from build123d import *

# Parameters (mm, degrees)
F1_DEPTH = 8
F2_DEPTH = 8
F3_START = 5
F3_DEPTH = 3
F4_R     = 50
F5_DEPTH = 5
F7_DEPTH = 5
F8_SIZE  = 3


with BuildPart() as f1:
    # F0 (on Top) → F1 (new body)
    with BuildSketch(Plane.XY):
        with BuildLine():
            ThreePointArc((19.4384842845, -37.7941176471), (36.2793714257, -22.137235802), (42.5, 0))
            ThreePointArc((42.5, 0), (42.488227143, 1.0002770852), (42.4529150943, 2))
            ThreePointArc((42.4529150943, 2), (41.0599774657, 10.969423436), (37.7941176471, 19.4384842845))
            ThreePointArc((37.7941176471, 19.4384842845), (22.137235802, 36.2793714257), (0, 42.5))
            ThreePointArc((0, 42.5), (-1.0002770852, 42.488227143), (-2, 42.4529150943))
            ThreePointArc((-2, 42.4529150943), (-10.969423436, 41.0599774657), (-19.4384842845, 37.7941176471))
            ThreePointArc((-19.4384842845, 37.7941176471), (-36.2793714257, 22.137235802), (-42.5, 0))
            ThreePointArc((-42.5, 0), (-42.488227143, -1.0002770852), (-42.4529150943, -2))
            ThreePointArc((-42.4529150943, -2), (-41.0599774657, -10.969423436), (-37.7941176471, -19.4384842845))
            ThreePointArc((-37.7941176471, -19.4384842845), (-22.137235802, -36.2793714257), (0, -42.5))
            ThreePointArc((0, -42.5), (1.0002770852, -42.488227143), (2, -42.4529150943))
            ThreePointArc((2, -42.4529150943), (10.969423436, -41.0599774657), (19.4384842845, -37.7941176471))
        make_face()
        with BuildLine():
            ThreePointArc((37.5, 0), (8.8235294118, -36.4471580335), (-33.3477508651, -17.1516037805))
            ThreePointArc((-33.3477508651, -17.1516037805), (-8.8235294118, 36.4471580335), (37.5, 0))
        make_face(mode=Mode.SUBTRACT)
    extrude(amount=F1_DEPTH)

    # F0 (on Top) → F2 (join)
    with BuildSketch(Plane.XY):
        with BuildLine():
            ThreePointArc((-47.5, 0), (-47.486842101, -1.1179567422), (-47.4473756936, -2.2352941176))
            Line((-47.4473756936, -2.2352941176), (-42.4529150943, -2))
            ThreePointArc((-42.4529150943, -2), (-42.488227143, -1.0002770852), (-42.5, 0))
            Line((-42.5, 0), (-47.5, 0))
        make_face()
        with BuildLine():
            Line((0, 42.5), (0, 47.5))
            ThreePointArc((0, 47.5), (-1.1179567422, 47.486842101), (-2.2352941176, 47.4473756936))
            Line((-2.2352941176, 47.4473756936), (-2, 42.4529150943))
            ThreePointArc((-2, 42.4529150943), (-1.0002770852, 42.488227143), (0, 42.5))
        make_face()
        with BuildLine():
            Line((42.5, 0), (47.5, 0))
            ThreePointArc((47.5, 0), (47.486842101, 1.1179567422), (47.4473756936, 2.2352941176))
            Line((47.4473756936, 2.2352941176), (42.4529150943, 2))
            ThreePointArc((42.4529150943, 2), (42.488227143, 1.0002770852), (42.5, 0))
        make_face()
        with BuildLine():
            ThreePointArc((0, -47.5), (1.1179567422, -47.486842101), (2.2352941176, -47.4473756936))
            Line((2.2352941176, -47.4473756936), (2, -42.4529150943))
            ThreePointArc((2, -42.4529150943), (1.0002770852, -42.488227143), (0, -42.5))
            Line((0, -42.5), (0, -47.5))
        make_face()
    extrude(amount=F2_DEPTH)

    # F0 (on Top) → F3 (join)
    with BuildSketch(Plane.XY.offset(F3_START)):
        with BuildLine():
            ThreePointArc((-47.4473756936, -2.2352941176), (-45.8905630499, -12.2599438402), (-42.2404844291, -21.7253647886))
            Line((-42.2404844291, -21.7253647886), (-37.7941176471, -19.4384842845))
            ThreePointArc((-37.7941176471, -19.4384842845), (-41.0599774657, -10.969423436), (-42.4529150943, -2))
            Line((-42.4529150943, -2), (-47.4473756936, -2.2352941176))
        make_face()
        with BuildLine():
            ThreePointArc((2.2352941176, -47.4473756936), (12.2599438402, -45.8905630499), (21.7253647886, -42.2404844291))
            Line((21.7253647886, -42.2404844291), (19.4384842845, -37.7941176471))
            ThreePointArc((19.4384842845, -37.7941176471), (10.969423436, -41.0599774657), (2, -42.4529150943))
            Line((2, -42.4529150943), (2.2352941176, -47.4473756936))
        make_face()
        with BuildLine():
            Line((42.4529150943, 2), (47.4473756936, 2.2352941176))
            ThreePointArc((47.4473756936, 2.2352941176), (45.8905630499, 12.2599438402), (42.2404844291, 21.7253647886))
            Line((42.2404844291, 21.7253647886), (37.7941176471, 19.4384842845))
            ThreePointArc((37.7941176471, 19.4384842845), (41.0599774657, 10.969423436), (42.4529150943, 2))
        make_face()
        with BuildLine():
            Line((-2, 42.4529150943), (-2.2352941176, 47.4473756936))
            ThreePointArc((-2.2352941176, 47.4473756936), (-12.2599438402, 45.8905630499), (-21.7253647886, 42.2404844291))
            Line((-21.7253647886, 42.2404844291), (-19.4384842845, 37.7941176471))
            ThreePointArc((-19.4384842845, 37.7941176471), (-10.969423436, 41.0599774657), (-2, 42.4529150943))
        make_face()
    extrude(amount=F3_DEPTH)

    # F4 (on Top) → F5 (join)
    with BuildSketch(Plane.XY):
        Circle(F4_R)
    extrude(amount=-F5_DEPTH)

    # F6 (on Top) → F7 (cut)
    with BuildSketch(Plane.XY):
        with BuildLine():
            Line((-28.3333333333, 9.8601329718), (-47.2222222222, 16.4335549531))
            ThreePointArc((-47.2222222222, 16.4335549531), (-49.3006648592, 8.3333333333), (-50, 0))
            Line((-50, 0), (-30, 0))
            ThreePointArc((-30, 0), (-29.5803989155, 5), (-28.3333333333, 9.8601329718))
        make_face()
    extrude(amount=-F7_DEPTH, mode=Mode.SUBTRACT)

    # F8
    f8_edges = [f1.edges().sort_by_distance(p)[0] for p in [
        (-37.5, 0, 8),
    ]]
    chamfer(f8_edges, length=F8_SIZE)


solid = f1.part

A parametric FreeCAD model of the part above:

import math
import FreeCAD as App
import Part
import Sketcher


def edges_at(feature, points):
    """Names of the edges that pass closest to the given points."""
    edges = feature.Shape.Edges
    near = lambda p: min(range(len(edges)), key=lambda i: edges[i].distToShape(Part.Vertex(*p))[0])
    return sorted({f"Edge{near(p) + 1}" for p in points})

doc = App.newDocument("Part")
body = doc.addObject("PartDesign::Body", "Body")

# Sketch on XY plane
sketch1 = body.newObject("Sketcher::SketchObject", "Sketch")
sketch1.AttachmentSupport = (doc.getObject("XY_Plane"), [""])
sketch1.MapMode = "FlatFace"
sketch1.addGeometry(Part.ArcOfCircle(Part.Circle(App.Vector(0, 0, 0), App.Vector(0, 0, 1), 42.5), math.radians(-63), math.radians(0)), False)
sketch1.addGeometry(Part.ArcOfCircle(Part.Circle(App.Vector(0, 0, 0), App.Vector(0, 0, 1), 42.5), math.radians(0), math.radians(2.7)), False)
sketch1.addGeometry(Part.ArcOfCircle(Part.Circle(App.Vector(0, 0, 0), App.Vector(0, 0, 1), 42.5), math.radians(3), math.radians(27)), False)
sketch1.addGeometry(Part.ArcOfCircle(Part.Circle(App.Vector(0, 0, 0), App.Vector(0, 0, 1), 42.5), math.radians(27), math.radians(90)), False)
sketch1.addGeometry(Part.ArcOfCircle(Part.Circle(App.Vector(0, 0, 0), App.Vector(0, 0, 1), 42.5), math.radians(90), math.radians(92.7)), False)
sketch1.addGeometry(Part.ArcOfCircle(Part.Circle(App.Vector(0, 0, 0), App.Vector(0, 0, 1), 42.5), math.radians(93), math.radians(117)), False)
sketch1.addGeometry(Part.ArcOfCircle(Part.Circle(App.Vector(0, 0, 0), App.Vector(0, 0, 1), 42.5), math.radians(117), math.radians(180)), False)
sketch1.addGeometry(Part.ArcOfCircle(Part.Circle(App.Vector(0, 0, 0), App.Vector(0, 0, 1), 42.5), math.radians(180), math.radians(182.7)), False)
sketch1.addGeometry(Part.ArcOfCircle(Part.Circle(App.Vector(0, 0, 0), App.Vector(0, 0, 1), 42.5), math.radians(-177), math.radians(-153)), False)
sketch1.addGeometry(Part.ArcOfCircle(Part.Circle(App.Vector(0, 0, 0), App.Vector(0, 0, 1), 42.5), math.radians(-153), math.radians(-90)), False)
sketch1.addGeometry(Part.ArcOfCircle(Part.Circle(App.Vector(0, 0, 0), App.Vector(0, 0, 1), 42.5), math.radians(-90), math.radians(-87.3)), False)
sketch1.addGeometry(Part.ArcOfCircle(Part.Circle(App.Vector(0, 0, 0), App.Vector(0, 0, 1), 42.5), math.radians(-87), math.radians(-63)), False)
sketch1.addGeometry(Part.ArcOfCircle(Part.Circle(App.Vector(0, 0, 0), App.Vector(0, 0, 1), 37.5), math.radians(0), math.radians(207)), False)
sketch1.addGeometry(Part.ArcOfCircle(Part.Circle(App.Vector(0, 0, 0), App.Vector(0, 0, 1), 37.5), math.radians(-153), math.radians(0)), False)
sketch1.addConstraint(Sketcher.Constraint("Tangent", 0, 2, 1, 1))
sketch1.addConstraint(Sketcher.Constraint("Tangent", 1, 2, 2, 1))
sketch1.addConstraint(Sketcher.Constraint("Tangent", 2, 2, 3, 1))
sketch1.addConstraint(Sketcher.Constraint("Tangent", 3, 2, 4, 1))
sketch1.addConstraint(Sketcher.Constraint("Tangent", 4, 2, 5, 1))
sketch1.addConstraint(Sketcher.Constraint("Tangent", 5, 2, 6, 1))
sketch1.addConstraint(Sketcher.Constraint("Tangent", 6, 2, 7, 1))
sketch1.addConstraint(Sketcher.Constraint("Tangent", 7, 2, 8, 1))
sketch1.addConstraint(Sketcher.Constraint("Tangent", 8, 2, 9, 1))
sketch1.addConstraint(Sketcher.Constraint("Tangent", 9, 2, 10, 1))
sketch1.addConstraint(Sketcher.Constraint("Tangent", 10, 2, 11, 1))
sketch1.addConstraint(Sketcher.Constraint("Tangent", 11, 2, 0, 1))
sketch1.addConstraint(Sketcher.Constraint("Tangent", 12, 1, 13, 2))
sketch1.addConstraint(Sketcher.Constraint("Coincident", 13, 1, 12, 2))
sketch1.addConstraint(Sketcher.Constraint("Coincident", 0, 3, -1, 1))
sketch1.addConstraint(Sketcher.Constraint("Coincident", 2, 3, -1, 1))
sketch1.addConstraint(Sketcher.Constraint("Coincident", 4, 3, -1, 1))
sketch1.addConstraint(Sketcher.Constraint("Coincident", 6, 3, -1, 1))
sketch1.addConstraint(Sketcher.Constraint("Coincident", 8, 3, -1, 1))
sketch1.addConstraint(Sketcher.Constraint("Coincident", 12, 3, -1, 1))
sketch1.addConstraint(Sketcher.Constraint("Equal", 8, 9))
sketch1.addConstraint(Sketcher.Constraint("PointOnObject", 0, 2, -1))
sketch1.addConstraint(Sketcher.Constraint("PointOnObject", 3, 2, -2))
sketch1.addConstraint(Sketcher.Constraint("PointOnObject", 6, 2, -1))
sketch1.addConstraint(Sketcher.Constraint("PointOnObject", 9, 2, -2))
sketch1.addConstraint(Sketcher.Constraint("PointOnObject", 12, 1, -1))
sketch1.addConstraint(Sketcher.Constraint("Radius", 0, 42.5))
sketch1.addConstraint(Sketcher.Constraint("Radius", 12, 37.5))
sketch1.addConstraint(Sketcher.Constraint("DistanceY", -1, 1, 1, 2, 2.0))
sketch1.addConstraint(Sketcher.Constraint("DistanceX", 4, 2, -1, 1, 2.0))
sketch1.addConstraint(Sketcher.Constraint("DistanceY", 7, 2, -1, 1, 2.0))
sketch1.addConstraint(Sketcher.Constraint("DistanceX", -1, 1, 10, 2, 2.0))
sketch1.addConstraint(Sketcher.Constraint("DistanceX", 13, 1, -1, 1, 33.347751))
sketch1.addConstraint(Sketcher.Constraint("DistanceY", 8, 2, 13, 1, 2.286881))
sketch1.addConstraint(Sketcher.Constraint("DistanceX", -1, 1, 2, 2, 37.794118))
sketch1.addConstraint(Sketcher.Constraint("DistanceX", 5, 2, -1, 1, 19.438484))
sketch1.addConstraint(Sketcher.Constraint("DistanceX", -1, 1, 11, 2, 19.438484))
pad1 = body.newObject("PartDesign::Pad", "Pad")
pad1.Profile = sketch1
pad1.Length = 8

# Sketch on XY plane
sketch2 = body.newObject("Sketcher::SketchObject", "Sketch001")
sketch2.AttachmentSupport = (doc.getObject("XY_Plane"), [""])
sketch2.MapMode = "FlatFace"
sketch2.addGeometry(Part.ArcOfCircle(Part.Circle(App.Vector(0, 0, 0), App.Vector(0, 0, 1), 47.5), math.radians(180), math.radians(182.7)), False)
sketch2.addGeometry(Part.LineSegment(App.Vector(-47.4, -2.2, 0), App.Vector(-42.5, -2, 0)), False)
sketch2.addGeometry(Part.ArcOfCircle(Part.Circle(App.Vector(0, 0, 0), App.Vector(0, 0, 1), 42.5), math.radians(180), math.radians(182.7)), False)
sketch2.addGeometry(Part.LineSegment(App.Vector(-42.5, 0, 0), App.Vector(-47.5, 0, 0)), False)
sketch2.addGeometry(Part.LineSegment(App.Vector(0, 42.5, 0), App.Vector(0, 47.5, 0)), False)
sketch2.addGeometry(Part.ArcOfCircle(Part.Circle(App.Vector(0, 0, 0), App.Vector(0, 0, 1), 47.5), math.radians(90), math.radians(92.7)), False)
sketch2.addGeometry(Part.LineSegment(App.Vector(-2.2, 47.4, 0), App.Vector(-2, 42.5, 0)), False)
sketch2.addGeometry(Part.ArcOfCircle(Part.Circle(App.Vector(0, 0, 0), App.Vector(0, 0, 1), 42.5), math.radians(90), math.radians(92.7)), False)
sketch2.addGeometry(Part.LineSegment(App.Vector(42.5, 0, 0), App.Vector(47.5, 0, 0)), False)
sketch2.addGeometry(Part.ArcOfCircle(Part.Circle(App.Vector(0, 0, 0), App.Vector(0, 0, 1), 47.5), math.radians(0), math.radians(2.7)), False)
sketch2.addGeometry(Part.LineSegment(App.Vector(47.4, 2.2, 0), App.Vector(42.5, 2, 0)), False)
sketch2.addGeometry(Part.ArcOfCircle(Part.Circle(App.Vector(0, 0, 0), App.Vector(0, 0, 1), 42.5), math.radians(0), math.radians(2.7)), False)
sketch2.addGeometry(Part.ArcOfCircle(Part.Circle(App.Vector(0, 0, 0), App.Vector(0, 0, 1), 47.5), math.radians(-90), math.radians(-87.3)), False)
sketch2.addGeometry(Part.LineSegment(App.Vector(2.2, -47.4, 0), App.Vector(2, -42.5, 0)), False)
sketch2.addGeometry(Part.ArcOfCircle(Part.Circle(App.Vector(0, 0, 0), App.Vector(0, 0, 1), 42.5), math.radians(-90), math.radians(-87.3)), False)
sketch2.addGeometry(Part.LineSegment(App.Vector(0, -42.5, 0), App.Vector(0, -47.5, 0)), False)
sketch2.addConstraint(Sketcher.Constraint("Coincident", 0, 2, 1, 1))
sketch2.addConstraint(Sketcher.Constraint("Coincident", 1, 2, 2, 2))
sketch2.addConstraint(Sketcher.Constraint("Coincident", 2, 1, 3, 1))
sketch2.addConstraint(Sketcher.Constraint("Coincident", 3, 2, 0, 1))
sketch2.addConstraint(Sketcher.Constraint("Coincident", 4, 2, 5, 1))
sketch2.addConstraint(Sketcher.Constraint("Coincident", 5, 2, 6, 1))
sketch2.addConstraint(Sketcher.Constraint("Coincident", 6, 2, 7, 2))
sketch2.addConstraint(Sketcher.Constraint("Coincident", 7, 1, 4, 1))
sketch2.addConstraint(Sketcher.Constraint("Coincident", 8, 2, 9, 1))
sketch2.addConstraint(Sketcher.Constraint("Coincident", 9, 2, 10, 1))
sketch2.addConstraint(Sketcher.Constraint("Coincident", 10, 2, 11, 2))
sketch2.addConstraint(Sketcher.Constraint("Coincident", 11, 1, 8, 1))
sketch2.addConstraint(Sketcher.Constraint("Coincident", 12, 2, 13, 1))
sketch2.addConstraint(Sketcher.Constraint("Coincident", 13, 2, 14, 2))
sketch2.addConstraint(Sketcher.Constraint("Coincident", 14, 1, 15, 1))
sketch2.addConstraint(Sketcher.Constraint("Coincident", 15, 2, 12, 1))
sketch2.addConstraint(Sketcher.Constraint("Horizontal", 3))
sketch2.addConstraint(Sketcher.Constraint("Vertical", 4))
sketch2.addConstraint(Sketcher.Constraint("Horizontal", 8))
sketch2.addConstraint(Sketcher.Constraint("Vertical", 15))
sketch2.addConstraint(Sketcher.Constraint("Coincident", 0, 3, -1, 1))
sketch2.addConstraint(Sketcher.Constraint("Coincident", 2, 3, -1, 1))
sketch2.addConstraint(Sketcher.Constraint("Coincident", 5, 3, -1, 1))
sketch2.addConstraint(Sketcher.Constraint("Coincident", 7, 3, -1, 1))
sketch2.addConstraint(Sketcher.Constraint("Coincident", 9, 3, -1, 1))
sketch2.addConstraint(Sketcher.Constraint("Coincident", 11, 3, -1, 1))
sketch2.addConstraint(Sketcher.Constraint("Coincident", 12, 3, -1, 1))
sketch2.addConstraint(Sketcher.Constraint("Coincident", 14, 3, -1, 1))
sketch2.addConstraint(Sketcher.Constraint("Equal", 0, 5))
sketch2.addConstraint(Sketcher.Constraint("Equal", 2, 7))
sketch2.addConstraint(Sketcher.Constraint("Equal", 5, 9))
sketch2.addConstraint(Sketcher.Constraint("Equal", 7, 11))
sketch2.addConstraint(Sketcher.Constraint("Equal", 9, 12))
sketch2.addConstraint(Sketcher.Constraint("Equal", 11, 14))
sketch2.addConstraint(Sketcher.Constraint("PointOnObject", 2, 1, -1))
sketch2.addConstraint(Sketcher.Constraint("PointOnObject", 4, 2, -2))
sketch2.addConstraint(Sketcher.Constraint("PointOnObject", 8, 2, -1))
sketch2.addConstraint(Sketcher.Constraint("PointOnObject", 14, 1, -2))
sketch2.addConstraint(Sketcher.Constraint("Perpendicular", 1, 6))
sketch2.addConstraint(Sketcher.Constraint("Perpendicular", 6, 10))
sketch2.addConstraint(Sketcher.Constraint("Perpendicular", 10, 13))
sketch2.addConstraint(Sketcher.Constraint("Radius", 0, 47.5))
sketch2.addConstraint(Sketcher.Constraint("Radius", 2, 42.5))
sketch2.addConstraint(Sketcher.Constraint("DistanceY", 1, 2, -1, 1, 2.0))
sketch2.addConstraint(Sketcher.Constraint("DistanceX", 6, 2, -1, 1, 2.0))
sketch2.addConstraint(Sketcher.Constraint("DistanceY", -1, 1, 10, 2, 2.0))
sketch2.addConstraint(Sketcher.Constraint("DistanceX", -1, 1, 13, 2, 2.0))
sketch2.addConstraint(Sketcher.Constraint("DistanceX", 0, 2, 1, 2, 4.994461))
pad2 = body.newObject("PartDesign::Pad", "Pad001")
pad2.Profile = sketch2
pad2.Length = 8

# Sketch on XY plane
sketch3 = body.newObject("Sketcher::SketchObject", "Sketch002")
sketch3.AttachmentSupport = (doc.getObject("XY_Plane"), [""])
sketch3.MapMode = "FlatFace"
sketch3.AttachmentOffset = App.Placement(App.Vector(0, 0, 5), App.Rotation())
sketch3.addGeometry(Part.ArcOfCircle(Part.Circle(App.Vector(0, 0, 0), App.Vector(0, 0, 1), 48), math.radians(-177), math.radians(-153)), False)
sketch3.addGeometry(Part.LineSegment(App.Vector(-42, -22, 0), App.Vector(-38, -19, 0)), False)
sketch3.addGeometry(Part.ArcOfCircle(Part.Circle(App.Vector(0, 0, 0), App.Vector(0, 0, 1), 42), math.radians(-177), math.radians(-153)), False)
sketch3.addGeometry(Part.LineSegment(App.Vector(-42, -2, 0), App.Vector(-47, -2, 0)), False)
sketch3.addGeometry(Part.ArcOfCircle(Part.Circle(App.Vector(0, 0, 0), App.Vector(0, 0, 1), 48), math.radians(-87), math.radians(-63)), False)
sketch3.addGeometry(Part.LineSegment(App.Vector(22, -42, 0), App.Vector(19, -38, 0)), False)
sketch3.addGeometry(Part.ArcOfCircle(Part.Circle(App.Vector(0, 0, 0), App.Vector(0, 0, 1), 42), math.radians(-87), math.radians(-63)), False)
sketch3.addGeometry(Part.LineSegment(App.Vector(2, -42, 0), App.Vector(2, -47, 0)), False)
sketch3.addGeometry(Part.LineSegment(App.Vector(42, 2, 0), App.Vector(47, 2, 0)), False)
sketch3.addGeometry(Part.ArcOfCircle(Part.Circle(App.Vector(0, 0, 0), App.Vector(0, 0, 1), 48), math.radians(3), math.radians(27)), False)
sketch3.addGeometry(Part.LineSegment(App.Vector(42, 22, 0), App.Vector(38, 19, 0)), False)
sketch3.addGeometry(Part.ArcOfCircle(Part.Circle(App.Vector(0, 0, 0), App.Vector(0, 0, 1), 42), math.radians(3), math.radians(27)), False)
sketch3.addGeometry(Part.LineSegment(App.Vector(-2, 42, 0), App.Vector(-2, 47, 0)), False)
sketch3.addGeometry(Part.ArcOfCircle(Part.Circle(App.Vector(0, 0, 0), App.Vector(0, 0, 1), 48), math.radians(93), math.radians(117)), False)
sketch3.addGeometry(Part.LineSegment(App.Vector(-22, 42, 0), App.Vector(-19, 38, 0)), False)
sketch3.addGeometry(Part.ArcOfCircle(Part.Circle(App.Vector(0, 0, 0), App.Vector(0, 0, 1), 42), math.radians(93), math.radians(117)), False)
sketch3.addConstraint(Sketcher.Constraint("Coincident", 0, 2, 1, 1))
sketch3.addConstraint(Sketcher.Constraint("Coincident", 1, 2, 2, 2))
sketch3.addConstraint(Sketcher.Constraint("Coincident", 2, 1, 3, 1))
sketch3.addConstraint(Sketcher.Constraint("Coincident", 3, 2, 0, 1))
sketch3.addConstraint(Sketcher.Constraint("Coincident", 4, 2, 5, 1))
sketch3.addConstraint(Sketcher.Constraint("Coincident", 5, 2, 6, 2))
sketch3.addConstraint(Sketcher.Constraint("Coincident", 6, 1, 7, 1))
sketch3.addConstraint(Sketcher.Constraint("Coincident", 7, 2, 4, 1))
sketch3.addConstraint(Sketcher.Constraint("Coincident", 8, 2, 9, 1))
sketch3.addConstraint(Sketcher.Constraint("Coincident", 9, 2, 10, 1))
sketch3.addConstraint(Sketcher.Constraint("Coincident", 10, 2, 11, 2))
sketch3.addConstraint(Sketcher.Constraint("Coincident", 11, 1, 8, 1))
sketch3.addConstraint(Sketcher.Constraint("Coincident", 12, 2, 13, 1))
sketch3.addConstraint(Sketcher.Constraint("Coincident", 13, 2, 14, 1))
sketch3.addConstraint(Sketcher.Constraint("Coincident", 14, 2, 15, 2))
sketch3.addConstraint(Sketcher.Constraint("Coincident", 15, 1, 12, 1))
sketch3.addConstraint(Sketcher.Constraint("Coincident", 0, 3, -1, 1))
sketch3.addConstraint(Sketcher.Constraint("Coincident", 2, 3, -1, 1))
sketch3.addConstraint(Sketcher.Constraint("Coincident", 4, 3, -1, 1))
sketch3.addConstraint(Sketcher.Constraint("Coincident", 6, 3, -1, 1))
sketch3.addConstraint(Sketcher.Constraint("Coincident", 9, 3, -1, 1))
sketch3.addConstraint(Sketcher.Constraint("Coincident", 11, 3, -1, 1))
sketch3.addConstraint(Sketcher.Constraint("Coincident", 13, 3, -1, 1))
sketch3.addConstraint(Sketcher.Constraint("Coincident", 15, 3, -1, 1))
sketch3.addConstraint(Sketcher.Constraint("Equal", 0, 4))
sketch3.addConstraint(Sketcher.Constraint("Equal", 2, 6))
sketch3.addConstraint(Sketcher.Constraint("Equal", 4, 9))
sketch3.addConstraint(Sketcher.Constraint("Equal", 6, 11))
sketch3.addConstraint(Sketcher.Constraint("Equal", 9, 13))
sketch3.addConstraint(Sketcher.Constraint("Equal", 11, 15))
sketch3.addConstraint(Sketcher.Constraint("Perpendicular", 1, 5))
sketch3.addConstraint(Sketcher.Constraint("Perpendicular", 3, 7))
sketch3.addConstraint(Sketcher.Constraint("Perpendicular", 7, 8))
sketch3.addConstraint(Sketcher.Constraint("Perpendicular", 5, 10))
sketch3.addConstraint(Sketcher.Constraint("Perpendicular", 8, 12))
sketch3.addConstraint(Sketcher.Constraint("Perpendicular", 10, 14))
sketch3.addConstraint(Sketcher.Constraint("Radius", 0, 47.5))
sketch3.addConstraint(Sketcher.Constraint("Radius", 2, 42.5))
sketch3.addConstraint(Sketcher.Constraint("DistanceY", 2, 1, -1, 1, 2.0))
sketch3.addConstraint(Sketcher.Constraint("DistanceX", -1, 1, 6, 1, 2.0))
sketch3.addConstraint(Sketcher.Constraint("DistanceY", -1, 1, 11, 1, 2.0))
sketch3.addConstraint(Sketcher.Constraint("DistanceX", 15, 1, -1, 1, 2.0))
sketch3.addConstraint(Sketcher.Constraint("DistanceY", 0, 2, 1, 2, 2.286881))
sketch3.addConstraint(Sketcher.Constraint("DistanceX", 2, 1, 0, 2, 0.212431))
sketch3.addConstraint(Sketcher.Constraint("DistanceX", 3, 2, 2, 1, 4.994461))
sketch3.addConstraint(Sketcher.Constraint("DistanceY", 6, 1, 4, 2, 0.212431))
sketch3.addConstraint(Sketcher.Constraint("DistanceX", 9, 2, 8, 2, 5.206891))
sketch3.addConstraint(Sketcher.Constraint("DistanceX", 13, 2, 12, 2, 19.490071))
pad3 = body.newObject("PartDesign::Pad", "Pad002")
pad3.Profile = sketch3
pad3.Length = 3

# Sketch on XY plane
sketch4 = body.newObject("Sketcher::SketchObject", "Sketch003")
sketch4.AttachmentSupport = (doc.getObject("XY_Plane"), [""])
sketch4.MapMode = "FlatFace"
sketch4.addGeometry(Part.Circle(App.Vector(0, 0, 0), App.Vector(0, 0, 1), 50), False)
sketch4.addConstraint(Sketcher.Constraint("Coincident", 0, 3, -1, 1))
sketch4.addConstraint(Sketcher.Constraint("Diameter", 0, 100.0))
pad4 = body.newObject("PartDesign::Pad", "Pad003")
pad4.Profile = sketch4
pad4.Length = 5
pad4.Reversed = True

# Sketch on XY plane
sketch5 = body.newObject("Sketcher::SketchObject", "Sketch004")
sketch5.AttachmentSupport = (doc.getObject("XY_Plane"), [""])
sketch5.MapMode = "FlatFace"
sketch5.addGeometry(Part.LineSegment(App.Vector(-28, 10, 0), App.Vector(-47, 16, 0)), False)
sketch5.addGeometry(Part.ArcOfCircle(Part.Circle(App.Vector(0, 0, 0), App.Vector(0, 0, 1), 50), math.radians(160.81), math.radians(180)), False)
sketch5.addGeometry(Part.LineSegment(App.Vector(-50, 0, 0), App.Vector(-30, 0, 0)), False)
sketch5.addGeometry(Part.ArcOfCircle(Part.Circle(App.Vector(0, 0, 0), App.Vector(0, 0, 1), 30), math.radians(160.81), math.radians(180)), False)
sketch5.addConstraint(Sketcher.Constraint("Coincident", 0, 2, 1, 1))
sketch5.addConstraint(Sketcher.Constraint("Coincident", 1, 2, 2, 1))
sketch5.addConstraint(Sketcher.Constraint("Coincident", 2, 2, 3, 2))
sketch5.addConstraint(Sketcher.Constraint("Coincident", 3, 1, 0, 1))
sketch5.addConstraint(Sketcher.Constraint("Horizontal", 2))
sketch5.addConstraint(Sketcher.Constraint("Coincident", 1, 3, -1, 1))
sketch5.addConstraint(Sketcher.Constraint("Coincident", 3, 3, -1, 1))
sketch5.addConstraint(Sketcher.Constraint("PointOnObject", 1, 2, -1))
sketch5.addConstraint(Sketcher.Constraint("Radius", 1, 50.0))
sketch5.addConstraint(Sketcher.Constraint("Radius", 3, 30.0))
sketch5.addConstraint(Sketcher.Constraint("DistanceX", 0, 2, 3, 1, 18.888889))
sketch5.addConstraint(Sketcher.Constraint("DistanceX", 0, 2, -1, 1, 47.222222))
pocket1 = body.newObject("PartDesign::Pocket", "Pocket")
pocket1.Profile = sketch5
pocket1.Length = 5
doc.recompute()

chamfer = body.newObject("PartDesign::Chamfer", "Chamfer")
chamfer.Base = (pocket1, edges_at(pocket1, [(-8.824, 36.447, 8)]))
chamfer.Size = 3

doc.recompute()
